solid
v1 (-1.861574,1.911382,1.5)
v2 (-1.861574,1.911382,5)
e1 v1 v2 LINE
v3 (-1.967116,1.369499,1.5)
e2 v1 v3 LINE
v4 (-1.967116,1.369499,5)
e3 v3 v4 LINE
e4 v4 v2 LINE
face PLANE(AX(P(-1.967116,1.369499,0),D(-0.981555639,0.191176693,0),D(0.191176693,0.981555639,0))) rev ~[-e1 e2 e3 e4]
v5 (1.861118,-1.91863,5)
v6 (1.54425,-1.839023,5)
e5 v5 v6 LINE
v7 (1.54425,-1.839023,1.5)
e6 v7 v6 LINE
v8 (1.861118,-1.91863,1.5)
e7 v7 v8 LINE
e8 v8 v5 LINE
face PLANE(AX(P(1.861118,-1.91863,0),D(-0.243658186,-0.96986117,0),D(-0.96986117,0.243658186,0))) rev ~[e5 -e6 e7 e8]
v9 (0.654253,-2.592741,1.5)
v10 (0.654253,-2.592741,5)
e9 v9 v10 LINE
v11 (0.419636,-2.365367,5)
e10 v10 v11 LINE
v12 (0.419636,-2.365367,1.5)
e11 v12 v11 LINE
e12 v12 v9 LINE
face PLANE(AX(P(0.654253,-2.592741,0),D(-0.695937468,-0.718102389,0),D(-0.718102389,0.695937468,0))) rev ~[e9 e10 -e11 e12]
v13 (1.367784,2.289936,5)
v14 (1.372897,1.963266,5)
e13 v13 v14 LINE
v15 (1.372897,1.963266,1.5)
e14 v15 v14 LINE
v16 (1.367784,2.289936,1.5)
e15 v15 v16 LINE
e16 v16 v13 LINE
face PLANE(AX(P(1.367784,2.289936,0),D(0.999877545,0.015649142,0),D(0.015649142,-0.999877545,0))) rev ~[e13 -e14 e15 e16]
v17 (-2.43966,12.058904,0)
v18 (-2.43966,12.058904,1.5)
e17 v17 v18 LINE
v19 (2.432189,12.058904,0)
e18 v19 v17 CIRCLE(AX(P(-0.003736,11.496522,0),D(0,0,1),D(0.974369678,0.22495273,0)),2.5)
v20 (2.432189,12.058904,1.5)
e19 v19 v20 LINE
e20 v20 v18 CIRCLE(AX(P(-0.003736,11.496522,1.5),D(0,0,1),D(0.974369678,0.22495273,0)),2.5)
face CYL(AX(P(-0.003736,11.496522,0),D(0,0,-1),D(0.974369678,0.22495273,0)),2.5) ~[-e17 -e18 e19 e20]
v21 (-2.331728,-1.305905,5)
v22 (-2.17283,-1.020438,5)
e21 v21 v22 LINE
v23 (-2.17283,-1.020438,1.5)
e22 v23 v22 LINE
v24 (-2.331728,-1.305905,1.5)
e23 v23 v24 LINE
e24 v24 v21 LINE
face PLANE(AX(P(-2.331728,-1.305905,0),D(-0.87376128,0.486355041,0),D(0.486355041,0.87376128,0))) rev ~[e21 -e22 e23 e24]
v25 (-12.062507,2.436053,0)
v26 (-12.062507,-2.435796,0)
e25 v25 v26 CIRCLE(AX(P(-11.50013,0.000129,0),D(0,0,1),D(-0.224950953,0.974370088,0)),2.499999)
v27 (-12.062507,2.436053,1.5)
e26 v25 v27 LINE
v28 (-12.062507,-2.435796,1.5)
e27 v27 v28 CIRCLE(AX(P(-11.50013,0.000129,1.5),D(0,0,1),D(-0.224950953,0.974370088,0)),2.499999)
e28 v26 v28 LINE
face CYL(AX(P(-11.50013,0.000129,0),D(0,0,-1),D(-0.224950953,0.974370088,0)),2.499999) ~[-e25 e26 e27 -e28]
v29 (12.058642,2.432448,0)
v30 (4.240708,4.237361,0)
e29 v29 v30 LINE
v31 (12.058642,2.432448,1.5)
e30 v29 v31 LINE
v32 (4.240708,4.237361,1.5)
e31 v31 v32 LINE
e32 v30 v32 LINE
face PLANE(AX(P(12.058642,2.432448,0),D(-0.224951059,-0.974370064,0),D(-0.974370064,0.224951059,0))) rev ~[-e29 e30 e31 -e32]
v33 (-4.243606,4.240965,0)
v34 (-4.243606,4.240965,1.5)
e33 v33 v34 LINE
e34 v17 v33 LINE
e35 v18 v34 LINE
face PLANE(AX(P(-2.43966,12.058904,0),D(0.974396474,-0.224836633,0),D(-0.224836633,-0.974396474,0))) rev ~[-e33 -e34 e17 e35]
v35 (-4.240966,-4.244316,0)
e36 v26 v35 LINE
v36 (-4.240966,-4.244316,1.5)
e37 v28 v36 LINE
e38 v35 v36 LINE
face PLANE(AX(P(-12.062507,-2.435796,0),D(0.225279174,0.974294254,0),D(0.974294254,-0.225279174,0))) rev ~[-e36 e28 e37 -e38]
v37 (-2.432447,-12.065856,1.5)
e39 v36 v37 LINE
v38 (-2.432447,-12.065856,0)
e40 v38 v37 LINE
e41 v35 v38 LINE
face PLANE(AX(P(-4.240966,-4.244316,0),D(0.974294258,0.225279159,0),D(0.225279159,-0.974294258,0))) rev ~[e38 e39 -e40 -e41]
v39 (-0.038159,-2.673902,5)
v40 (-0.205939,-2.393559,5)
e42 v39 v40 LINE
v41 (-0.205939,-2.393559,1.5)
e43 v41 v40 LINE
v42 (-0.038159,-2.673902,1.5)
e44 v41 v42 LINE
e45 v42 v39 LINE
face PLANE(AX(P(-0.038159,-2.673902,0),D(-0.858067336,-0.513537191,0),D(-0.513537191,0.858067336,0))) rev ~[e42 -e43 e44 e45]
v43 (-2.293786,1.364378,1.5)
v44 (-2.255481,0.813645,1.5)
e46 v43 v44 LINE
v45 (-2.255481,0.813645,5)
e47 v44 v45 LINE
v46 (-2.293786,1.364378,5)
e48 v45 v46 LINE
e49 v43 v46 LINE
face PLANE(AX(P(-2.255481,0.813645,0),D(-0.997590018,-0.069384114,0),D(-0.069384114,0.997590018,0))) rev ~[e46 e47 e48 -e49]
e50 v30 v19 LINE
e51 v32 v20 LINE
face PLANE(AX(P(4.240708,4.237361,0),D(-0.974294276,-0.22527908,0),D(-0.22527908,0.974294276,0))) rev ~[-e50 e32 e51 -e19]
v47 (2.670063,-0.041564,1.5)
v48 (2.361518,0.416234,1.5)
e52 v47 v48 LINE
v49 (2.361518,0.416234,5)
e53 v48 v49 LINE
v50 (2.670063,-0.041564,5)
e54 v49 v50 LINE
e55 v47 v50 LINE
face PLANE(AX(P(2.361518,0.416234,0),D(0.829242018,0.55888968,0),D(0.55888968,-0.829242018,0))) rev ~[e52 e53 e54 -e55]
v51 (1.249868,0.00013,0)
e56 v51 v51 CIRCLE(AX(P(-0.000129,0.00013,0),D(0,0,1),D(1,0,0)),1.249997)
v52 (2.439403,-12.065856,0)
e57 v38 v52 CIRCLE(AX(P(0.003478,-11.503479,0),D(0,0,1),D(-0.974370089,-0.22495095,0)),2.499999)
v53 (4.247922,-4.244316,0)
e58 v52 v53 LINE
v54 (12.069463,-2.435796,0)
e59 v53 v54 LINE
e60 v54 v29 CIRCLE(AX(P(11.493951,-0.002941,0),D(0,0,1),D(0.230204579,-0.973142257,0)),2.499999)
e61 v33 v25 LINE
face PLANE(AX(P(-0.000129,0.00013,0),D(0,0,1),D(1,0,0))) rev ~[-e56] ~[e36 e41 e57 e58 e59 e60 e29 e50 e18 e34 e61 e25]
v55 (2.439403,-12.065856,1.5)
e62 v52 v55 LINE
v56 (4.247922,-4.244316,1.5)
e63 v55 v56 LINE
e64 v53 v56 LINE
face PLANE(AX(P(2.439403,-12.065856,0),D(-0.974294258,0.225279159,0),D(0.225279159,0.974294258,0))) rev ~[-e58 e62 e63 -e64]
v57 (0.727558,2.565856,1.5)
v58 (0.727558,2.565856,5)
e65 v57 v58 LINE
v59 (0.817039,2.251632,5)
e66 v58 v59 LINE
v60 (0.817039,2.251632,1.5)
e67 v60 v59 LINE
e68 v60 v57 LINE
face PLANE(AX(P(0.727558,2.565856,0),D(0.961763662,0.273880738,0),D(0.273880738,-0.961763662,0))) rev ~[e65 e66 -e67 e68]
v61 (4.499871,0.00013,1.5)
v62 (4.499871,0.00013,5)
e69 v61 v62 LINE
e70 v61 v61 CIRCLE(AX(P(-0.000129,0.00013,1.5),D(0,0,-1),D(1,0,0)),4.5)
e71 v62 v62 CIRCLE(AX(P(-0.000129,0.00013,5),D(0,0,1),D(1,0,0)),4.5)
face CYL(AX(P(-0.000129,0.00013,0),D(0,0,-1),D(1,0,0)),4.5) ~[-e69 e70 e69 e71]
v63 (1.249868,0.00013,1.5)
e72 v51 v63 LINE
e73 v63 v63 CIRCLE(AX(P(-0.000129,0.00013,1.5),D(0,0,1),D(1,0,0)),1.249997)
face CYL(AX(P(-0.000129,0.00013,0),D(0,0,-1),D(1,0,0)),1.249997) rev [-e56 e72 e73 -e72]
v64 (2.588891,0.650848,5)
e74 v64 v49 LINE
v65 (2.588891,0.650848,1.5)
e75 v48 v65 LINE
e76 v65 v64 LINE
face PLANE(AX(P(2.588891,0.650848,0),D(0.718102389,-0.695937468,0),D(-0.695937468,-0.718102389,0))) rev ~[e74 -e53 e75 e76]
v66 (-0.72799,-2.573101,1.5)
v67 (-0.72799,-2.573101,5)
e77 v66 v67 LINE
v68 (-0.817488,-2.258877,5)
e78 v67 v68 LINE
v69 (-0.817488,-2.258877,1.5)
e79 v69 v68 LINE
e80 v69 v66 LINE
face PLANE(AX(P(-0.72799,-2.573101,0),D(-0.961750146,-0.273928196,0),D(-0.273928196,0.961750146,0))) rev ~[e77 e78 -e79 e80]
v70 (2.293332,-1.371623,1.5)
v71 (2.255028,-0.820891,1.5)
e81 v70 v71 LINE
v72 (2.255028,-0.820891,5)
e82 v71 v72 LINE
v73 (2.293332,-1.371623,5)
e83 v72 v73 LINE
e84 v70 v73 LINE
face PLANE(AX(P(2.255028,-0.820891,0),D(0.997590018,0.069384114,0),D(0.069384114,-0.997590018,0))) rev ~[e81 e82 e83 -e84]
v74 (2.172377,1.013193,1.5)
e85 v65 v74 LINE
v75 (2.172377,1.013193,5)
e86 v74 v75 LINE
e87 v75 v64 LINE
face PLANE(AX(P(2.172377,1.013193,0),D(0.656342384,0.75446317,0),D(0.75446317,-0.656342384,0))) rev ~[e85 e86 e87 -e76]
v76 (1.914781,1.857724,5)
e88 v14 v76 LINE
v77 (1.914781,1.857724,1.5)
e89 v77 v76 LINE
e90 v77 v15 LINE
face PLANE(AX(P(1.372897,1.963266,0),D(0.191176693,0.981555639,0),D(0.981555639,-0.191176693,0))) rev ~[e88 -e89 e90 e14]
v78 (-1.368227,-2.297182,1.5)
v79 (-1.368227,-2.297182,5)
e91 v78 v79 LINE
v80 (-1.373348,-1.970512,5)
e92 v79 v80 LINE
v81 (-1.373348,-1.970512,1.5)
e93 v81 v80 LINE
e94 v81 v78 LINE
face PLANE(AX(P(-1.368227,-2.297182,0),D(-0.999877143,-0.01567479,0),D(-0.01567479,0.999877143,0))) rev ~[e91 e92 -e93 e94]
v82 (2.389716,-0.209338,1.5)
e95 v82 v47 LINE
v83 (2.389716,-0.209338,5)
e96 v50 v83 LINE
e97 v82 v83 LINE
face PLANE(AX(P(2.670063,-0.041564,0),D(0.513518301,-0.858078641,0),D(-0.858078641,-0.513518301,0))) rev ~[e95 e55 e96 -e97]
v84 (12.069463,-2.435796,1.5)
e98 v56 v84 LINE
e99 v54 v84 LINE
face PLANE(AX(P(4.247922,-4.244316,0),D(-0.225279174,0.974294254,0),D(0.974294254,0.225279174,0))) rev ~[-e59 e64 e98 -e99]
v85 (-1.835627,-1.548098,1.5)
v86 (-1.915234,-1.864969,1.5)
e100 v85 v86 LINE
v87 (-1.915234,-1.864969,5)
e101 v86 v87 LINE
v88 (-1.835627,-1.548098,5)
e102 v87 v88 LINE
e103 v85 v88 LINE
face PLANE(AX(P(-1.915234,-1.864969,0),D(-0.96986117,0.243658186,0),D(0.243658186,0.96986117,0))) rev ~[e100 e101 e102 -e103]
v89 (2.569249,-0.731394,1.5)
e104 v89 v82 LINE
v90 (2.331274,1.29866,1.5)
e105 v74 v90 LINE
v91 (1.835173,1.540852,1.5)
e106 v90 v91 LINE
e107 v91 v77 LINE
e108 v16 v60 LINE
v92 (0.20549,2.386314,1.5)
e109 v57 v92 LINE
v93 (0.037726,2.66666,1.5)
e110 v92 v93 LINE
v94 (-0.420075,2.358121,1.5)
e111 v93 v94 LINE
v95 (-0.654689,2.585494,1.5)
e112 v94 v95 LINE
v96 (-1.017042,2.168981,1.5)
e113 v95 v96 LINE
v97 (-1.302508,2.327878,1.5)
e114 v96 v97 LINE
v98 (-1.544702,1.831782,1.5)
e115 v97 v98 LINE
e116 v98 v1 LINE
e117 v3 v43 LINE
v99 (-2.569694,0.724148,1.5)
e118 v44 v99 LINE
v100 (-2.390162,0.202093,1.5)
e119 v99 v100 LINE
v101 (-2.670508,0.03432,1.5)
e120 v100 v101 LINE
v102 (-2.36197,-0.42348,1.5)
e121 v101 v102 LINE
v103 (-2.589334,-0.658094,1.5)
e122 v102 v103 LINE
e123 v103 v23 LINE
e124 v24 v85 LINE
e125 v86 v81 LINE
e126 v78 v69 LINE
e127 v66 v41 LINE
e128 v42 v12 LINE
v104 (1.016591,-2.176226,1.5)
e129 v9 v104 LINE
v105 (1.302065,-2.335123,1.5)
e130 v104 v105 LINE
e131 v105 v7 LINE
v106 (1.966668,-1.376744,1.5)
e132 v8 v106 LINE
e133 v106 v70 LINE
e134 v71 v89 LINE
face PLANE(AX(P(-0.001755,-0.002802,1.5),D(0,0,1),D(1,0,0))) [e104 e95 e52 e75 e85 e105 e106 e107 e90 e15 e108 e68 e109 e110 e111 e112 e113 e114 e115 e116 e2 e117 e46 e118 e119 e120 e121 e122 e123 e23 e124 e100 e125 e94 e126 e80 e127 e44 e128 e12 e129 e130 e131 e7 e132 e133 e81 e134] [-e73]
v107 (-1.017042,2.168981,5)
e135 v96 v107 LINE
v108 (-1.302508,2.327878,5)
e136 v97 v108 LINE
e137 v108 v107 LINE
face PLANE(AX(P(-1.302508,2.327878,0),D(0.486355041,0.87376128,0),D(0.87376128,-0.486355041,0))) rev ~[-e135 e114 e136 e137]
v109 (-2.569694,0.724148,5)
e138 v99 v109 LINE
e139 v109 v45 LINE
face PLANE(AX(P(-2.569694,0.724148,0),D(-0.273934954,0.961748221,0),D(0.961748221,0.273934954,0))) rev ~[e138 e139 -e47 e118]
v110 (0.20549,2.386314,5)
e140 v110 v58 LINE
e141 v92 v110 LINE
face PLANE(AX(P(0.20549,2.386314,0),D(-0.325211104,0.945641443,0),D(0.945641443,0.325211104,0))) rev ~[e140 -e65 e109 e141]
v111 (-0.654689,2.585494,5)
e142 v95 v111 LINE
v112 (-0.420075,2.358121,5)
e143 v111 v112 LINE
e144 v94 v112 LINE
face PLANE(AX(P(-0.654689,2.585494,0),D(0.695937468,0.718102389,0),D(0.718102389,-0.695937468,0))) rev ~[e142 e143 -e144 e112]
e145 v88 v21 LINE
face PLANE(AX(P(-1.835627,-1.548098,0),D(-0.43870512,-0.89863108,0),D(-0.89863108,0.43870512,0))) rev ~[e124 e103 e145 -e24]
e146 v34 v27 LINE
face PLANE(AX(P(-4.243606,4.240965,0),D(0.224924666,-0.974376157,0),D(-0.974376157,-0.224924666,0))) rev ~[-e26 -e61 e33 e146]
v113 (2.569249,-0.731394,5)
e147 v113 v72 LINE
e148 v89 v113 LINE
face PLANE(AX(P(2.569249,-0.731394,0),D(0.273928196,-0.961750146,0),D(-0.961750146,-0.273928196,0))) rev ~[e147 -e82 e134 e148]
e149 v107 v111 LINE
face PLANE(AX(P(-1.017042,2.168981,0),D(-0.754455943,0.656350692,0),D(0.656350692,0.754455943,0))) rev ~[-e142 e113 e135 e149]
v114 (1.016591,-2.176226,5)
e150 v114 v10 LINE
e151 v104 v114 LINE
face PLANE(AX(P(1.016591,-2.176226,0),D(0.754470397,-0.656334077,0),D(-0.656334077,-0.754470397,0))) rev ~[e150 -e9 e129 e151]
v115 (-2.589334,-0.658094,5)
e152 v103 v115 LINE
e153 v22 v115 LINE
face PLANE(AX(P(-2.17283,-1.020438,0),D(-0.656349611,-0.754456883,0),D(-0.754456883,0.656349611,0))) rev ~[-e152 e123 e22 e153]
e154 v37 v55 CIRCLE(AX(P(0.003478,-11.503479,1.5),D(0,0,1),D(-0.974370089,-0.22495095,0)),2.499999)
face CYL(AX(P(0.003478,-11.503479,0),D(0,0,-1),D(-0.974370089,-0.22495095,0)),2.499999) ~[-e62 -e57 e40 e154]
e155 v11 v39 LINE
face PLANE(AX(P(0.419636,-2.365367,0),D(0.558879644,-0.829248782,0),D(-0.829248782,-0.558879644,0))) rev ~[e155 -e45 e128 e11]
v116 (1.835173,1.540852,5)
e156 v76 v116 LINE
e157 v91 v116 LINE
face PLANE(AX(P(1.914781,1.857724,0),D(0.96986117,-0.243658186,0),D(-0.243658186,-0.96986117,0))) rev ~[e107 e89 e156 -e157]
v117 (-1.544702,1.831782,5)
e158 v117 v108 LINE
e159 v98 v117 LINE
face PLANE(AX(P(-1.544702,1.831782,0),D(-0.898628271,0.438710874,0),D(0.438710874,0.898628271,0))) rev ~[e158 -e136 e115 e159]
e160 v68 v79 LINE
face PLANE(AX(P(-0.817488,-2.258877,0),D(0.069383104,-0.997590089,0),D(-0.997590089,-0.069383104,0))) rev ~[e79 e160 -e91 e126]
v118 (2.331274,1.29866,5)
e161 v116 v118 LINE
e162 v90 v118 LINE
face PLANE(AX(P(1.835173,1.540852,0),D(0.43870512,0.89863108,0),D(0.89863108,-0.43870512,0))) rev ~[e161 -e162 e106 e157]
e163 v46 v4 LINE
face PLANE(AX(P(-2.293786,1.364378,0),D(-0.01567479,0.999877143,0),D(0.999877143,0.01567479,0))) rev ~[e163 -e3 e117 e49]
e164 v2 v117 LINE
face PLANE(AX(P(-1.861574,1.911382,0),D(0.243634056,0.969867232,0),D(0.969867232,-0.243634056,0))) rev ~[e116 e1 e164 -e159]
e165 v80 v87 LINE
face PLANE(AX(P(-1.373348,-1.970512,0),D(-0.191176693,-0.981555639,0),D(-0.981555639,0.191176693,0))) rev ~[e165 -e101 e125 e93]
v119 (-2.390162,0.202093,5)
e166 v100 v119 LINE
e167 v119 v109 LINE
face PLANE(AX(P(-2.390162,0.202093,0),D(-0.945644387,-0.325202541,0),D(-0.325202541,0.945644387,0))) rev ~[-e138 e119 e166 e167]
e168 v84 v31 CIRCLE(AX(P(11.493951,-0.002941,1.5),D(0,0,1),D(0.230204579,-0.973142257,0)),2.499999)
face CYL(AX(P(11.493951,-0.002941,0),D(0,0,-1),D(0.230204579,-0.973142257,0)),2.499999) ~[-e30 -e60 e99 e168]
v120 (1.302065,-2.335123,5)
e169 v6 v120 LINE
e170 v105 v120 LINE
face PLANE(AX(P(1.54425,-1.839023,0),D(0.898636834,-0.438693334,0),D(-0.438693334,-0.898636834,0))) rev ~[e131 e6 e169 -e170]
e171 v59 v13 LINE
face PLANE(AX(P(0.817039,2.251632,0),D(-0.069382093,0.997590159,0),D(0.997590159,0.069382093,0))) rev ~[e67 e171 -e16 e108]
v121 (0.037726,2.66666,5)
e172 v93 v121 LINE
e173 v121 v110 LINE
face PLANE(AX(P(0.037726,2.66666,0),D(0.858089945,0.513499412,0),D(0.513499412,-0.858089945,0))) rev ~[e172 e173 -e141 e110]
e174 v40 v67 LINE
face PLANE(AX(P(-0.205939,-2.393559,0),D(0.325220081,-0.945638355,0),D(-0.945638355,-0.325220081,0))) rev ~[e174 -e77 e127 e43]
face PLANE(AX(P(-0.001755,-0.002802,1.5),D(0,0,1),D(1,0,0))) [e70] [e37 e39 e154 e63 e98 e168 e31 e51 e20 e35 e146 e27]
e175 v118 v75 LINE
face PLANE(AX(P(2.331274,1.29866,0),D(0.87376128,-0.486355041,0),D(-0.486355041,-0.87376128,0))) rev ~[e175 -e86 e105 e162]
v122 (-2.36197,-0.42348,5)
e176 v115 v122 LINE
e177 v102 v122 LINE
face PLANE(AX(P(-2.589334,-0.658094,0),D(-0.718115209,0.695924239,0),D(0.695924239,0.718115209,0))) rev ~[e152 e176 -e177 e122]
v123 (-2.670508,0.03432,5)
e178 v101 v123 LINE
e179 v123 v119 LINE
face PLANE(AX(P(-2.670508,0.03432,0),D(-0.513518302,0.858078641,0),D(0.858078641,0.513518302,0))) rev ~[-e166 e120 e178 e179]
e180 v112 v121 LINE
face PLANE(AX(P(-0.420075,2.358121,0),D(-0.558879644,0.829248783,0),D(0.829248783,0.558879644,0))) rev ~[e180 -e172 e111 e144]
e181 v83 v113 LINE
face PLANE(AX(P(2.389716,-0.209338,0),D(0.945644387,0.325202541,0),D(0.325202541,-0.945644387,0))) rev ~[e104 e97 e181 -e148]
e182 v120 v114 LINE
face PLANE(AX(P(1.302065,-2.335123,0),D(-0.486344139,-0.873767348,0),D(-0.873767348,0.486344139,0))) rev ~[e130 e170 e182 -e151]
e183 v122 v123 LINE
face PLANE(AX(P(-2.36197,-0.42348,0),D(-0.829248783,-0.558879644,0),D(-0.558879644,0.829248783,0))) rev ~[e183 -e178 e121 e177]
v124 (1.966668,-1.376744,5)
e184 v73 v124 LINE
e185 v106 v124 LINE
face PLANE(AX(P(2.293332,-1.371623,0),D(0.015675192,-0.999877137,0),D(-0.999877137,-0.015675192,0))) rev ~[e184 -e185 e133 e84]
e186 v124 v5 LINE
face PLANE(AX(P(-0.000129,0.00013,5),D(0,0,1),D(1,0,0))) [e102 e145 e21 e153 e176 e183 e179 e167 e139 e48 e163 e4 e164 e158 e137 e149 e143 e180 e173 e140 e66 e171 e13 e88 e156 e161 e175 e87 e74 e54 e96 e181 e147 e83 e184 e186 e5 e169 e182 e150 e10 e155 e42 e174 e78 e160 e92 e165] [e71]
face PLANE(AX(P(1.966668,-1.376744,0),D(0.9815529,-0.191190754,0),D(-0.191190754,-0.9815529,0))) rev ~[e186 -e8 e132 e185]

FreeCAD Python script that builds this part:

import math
import FreeCAD as App
import Part
import Sketcher
Q = App.Units.Quantity

doc = App.newDocument("Part")
body = doc.addObject("PartDesign::Body", "Body")

sketch1 = doc.addObject("Sketcher::SketchObject", "Sketch")
body.addObject(sketch1)
sketch1.AttachmentSupport = (doc.XY_Plane, [""])
sketch1.MapMode = "FlatFace"
sketch1.addGeometry(Part.Circle(App.Vector(0, 0, 0), App.Vector(0, 0, 1), 3.5), False)
sketch1.addGeometry(Part.Circle(App.Vector(0, 0, 0), App.Vector(0, 0, 1), 3), False)
sketch1.addConstraint(Sketcher.Constraint("Diameter", 0, Q("6.988622 mm")))
sketch1.addConstraint(Sketcher.Constraint("Diameter", 1, Q("6.085762 mm")))
sketch1.addConstraint(Sketcher.Constraint("DistanceX", 1, 3, -1, 1, Q("0.000129 mm")))
sketch1.addConstraint(Sketcher.Constraint("DistanceY", -1, 1, 1, 3, Q("0.00013 mm")))
sketch1.addConstraint(Sketcher.Constraint("DistanceX", 1, 3, 0, 3, Q("0.000261 mm")))
sketch1.addConstraint(Sketcher.Constraint("DistanceY", -1, 1, 0, 3, Q("0.002067 mm")))
pad1 = doc.addObject("PartDesign::Pad", "Pad")
body.addObject(pad1)
pad1.Profile = sketch1
pad1.Length = 5

sketch2 = doc.addObject("Sketcher::SketchObject", "Sketch001")
body.addObject(sketch2)
sketch2.AttachmentSupport = (doc.XY_Plane, [""])
sketch2.MapMode = "FlatFace"
sketch2.addGeometry(Part.Circle(App.Vector(0, 0, 0), App.Vector(0, 0, 1), 4.5), False)
sketch2.addGeometry(Part.Circle(App.Vector(0, 0, 0), App.Vector(0, 0, 1), 3.5), False)
sketch2.addConstraint(Sketcher.Constraint("Diameter", 0, Q("9 mm")))
sketch2.addConstraint(Sketcher.Constraint("Diameter", 1, Q("6.988622 mm")))
sketch2.addConstraint(Sketcher.Constraint("DistanceX", 0, 3, -1, 1, Q("0.000129 mm")))
sketch2.addConstraint(Sketcher.Constraint("DistanceY", -1, 1, 0, 3, Q("0.00013 mm")))
sketch2.addConstraint(Sketcher.Constraint("DistanceX", 0, 3, 1, 3, Q("0.000261 mm")))
sketch2.addConstraint(Sketcher.Constraint("DistanceY", -1, 1, 1, 3, Q("0.002067 mm")))
pad2 = doc.addObject("PartDesign::Pad", "Pad001")
body.addObject(pad2)
pad2.Profile = sketch2
pad2.Length = 5

sketch3 = doc.addObject("Sketcher::SketchObject", "Sketch002")
body.addObject(sketch3)
sketch3.AttachmentSupport = (doc.XY_Plane, [""])
sketch3.MapMode = "FlatFace"
sketch3.addGeometry(Part.LineSegment(App.Vector(2.4, -12.1, 0), App.Vector(4.2, -4.2, 0)), False)
sketch3.addGeometry(Part.LineSegment(App.Vector(4.2, -4.2, 0), App.Vector(12.1, -2.4, 0)), False)
sketch3.addGeometry(Part.ArcOfCircle(Part.Circle(App.Vector(11.5, 0, 0), App.Vector(0, 0, 1), 2.5), math.radians(-77), math.radians(77)), False)
sketch3.addGeometry(Part.LineSegment(App.Vector(12.1, 2.4, 0), App.Vector(4.2, 4.2, 0)), False)
sketch3.addGeometry(Part.LineSegment(App.Vector(4.2, 4.2, 0), App.Vector(2.4, 12.1, 0)), False)
sketch3.addGeometry(Part.ArcOfCircle(Part.Circle(App.Vector(0, 11.5, 0), App.Vector(0, 0, 1), 2.5), math.radians(13), math.radians(167)), False)
sketch3.addGeometry(Part.LineSegment(App.Vector(-2.4, 12.1, 0), App.Vector(-4.2, 4.2, 0)), False)
sketch3.addGeometry(Part.LineSegment(App.Vector(-4.2, 4.2, 0), App.Vector(-12.1, 2.4, 0)), False)
sketch3.addGeometry(Part.ArcOfCircle(Part.Circle(App.Vector(-11.5, 0, 0), App.Vector(0, 0, 1), 2.5), math.radians(103), math.radians(257)), False)
sketch3.addGeometry(Part.LineSegment(App.Vector(-12.1, -2.4, 0), App.Vector(-4.2, -4.2, 0)), False)
sketch3.addGeometry(Part.LineSegment(App.Vector(-4.2, -4.2, 0), App.Vector(-2.4, -12.1, 0)), False)
sketch3.addGeometry(Part.ArcOfCircle(Part.Circle(App.Vector(0, -11.5, 0), App.Vector(0, 0, 1), 2.5), math.radians(-167), math.radians(-13)), False)
sketch3.addGeometry(Part.Circle(App.Vector(0, 0, 0), App.Vector(0, 0, 1), 1.2), False)
sketch3.addConstraint(Sketcher.Constraint("Coincident", 0, 2, 1, 1))
sketch3.addConstraint(Sketcher.Constraint("Coincident", 1, 2, 2, 1))
sketch3.addConstraint(Sketcher.Constraint("Coincident", 2, 2, 3, 1))
sketch3.addConstraint(Sketcher.Constraint("Coincident", 3, 2, 4, 1))
sketch3.addConstraint(Sketcher.Constraint("Coincident", 4, 2, 5, 1))
sketch3.addConstraint(Sketcher.Constraint("Coincident", 5, 2, 6, 1))
sketch3.addConstraint(Sketcher.Constraint("Coincident", 6, 2, 7, 1))
sketch3.addConstraint(Sketcher.Constraint("Coincident", 7, 2, 8, 1))
sketch3.addConstraint(Sketcher.Constraint("Coincident", 8, 2, 9, 1))
sketch3.addConstraint(Sketcher.Constraint("Coincident", 9, 2, 10, 1))
sketch3.addConstraint(Sketcher.Constraint("Coincident", 10, 2, 11, 1))
sketch3.addConstraint(Sketcher.Constraint("Coincident", 11, 2, 0, 1))
sketch3.addConstraint(Sketcher.Constraint("Equal", 2, 5))
sketch3.addConstraint(Sketcher.Constraint("Equal", 5, 8))
sketch3.addConstraint(Sketcher.Constraint("Equal", 8, 11))
sketch3.addConstraint(Sketcher.Constraint("Perpendicular", 1, 4))
sketch3.addConstraint(Sketcher.Constraint("Perpendicular", 0, 9))
sketch3.addConstraint(Sketcher.Constraint("Parallel", 4, 10))
sketch3.addConstraint(Sketcher.Constraint("Horizontal", 8, 3, 12, 3))
sketch3.addConstraint(Sketcher.Constraint("Horizontal", 4, 2, 5, 2))
sketch3.addConstraint(Sketcher.Constraint("Horizontal", 1, 2, 8, 2))
sketch3.addConstraint(Sketcher.Constraint("Horizontal", 0, 2, 9, 2))
sketch3.addConstraint(Sketcher.Constraint("Horizontal", 10, 2, 11, 2))
sketch3.addConstraint(Sketcher.Constraint("Vertical", 7, 2, 8, 2))
sketch3.addConstraint(Sketcher.Constraint("Equal", 0, 1))
sketch3.addConstraint(Sketcher.Constraint("Equal", 1, 9))
sketch3.addConstraint(Sketcher.Constraint("Radius", 2, Q("2.499999 mm")))
sketch3.addConstraint(Sketcher.Constraint("Angle", 3, Q("167 deg")))
sketch3.addConstraint(Sketcher.Constraint("DistanceY", 11, 3, 5, 3, Q("23.000001 mm")))
sketch3.addConstraint(Sketcher.Constraint("DistanceX", 8, 3, 12, 3, Q("11.500001 mm")))
sketch3.addConstraint(Sketcher.Constraint("Diameter", 12, Q("2.499994 mm")))
sketch3.addConstraint(Sketcher.Constraint("DistanceX", 5, 3, 1, 2, Q("12.073198 mm")))
sketch3.addConstraint(Sketcher.Constraint("DistanceY", 2, 3, 3, 2, Q("4.240302 mm")))
sketch3.addConstraint(Sketcher.Constraint("DistanceX", 7, 2, 6, 2, Q("7.8189 mm")))
sketch3.addConstraint(Sketcher.Constraint("Distance", 7, Q("8.024519 mm")))
sketch3.addConstraint(Sketcher.Constraint("DistanceX", -1, 1, 2, 3, Q("11.493951 mm")))
sketch3.addConstraint(Sketcher.Constraint("DistanceY", 2, 3, -1, 1, Q("0.002941 mm")))
sketch3.addConstraint(Sketcher.Constraint("DistanceY", -1, 1, 5, 3, Q("11.496522 mm")))
sketch3.addConstraint(Sketcher.Constraint("DistanceX", 8, 3, -1, 1, Q("11.50013 mm")))
sketch3.addConstraint(Sketcher.Constraint("DistanceY", -1, 1, 8, 3, Q("0.000129 mm")))
sketch3.addConstraint(Sketcher.Constraint("DistanceX", -1, 1, 0, 2, Q("4.247922 mm")))
sketch3.addConstraint(Sketcher.Constraint("DistanceY", -1, 1, 2, 2, Q("2.432448 mm")))
sketch3.addConstraint(Sketcher.Constraint("DistanceX", -1, 1, 4, 2, Q("2.432189 mm")))
pad3 = doc.addObject("PartDesign::Pad", "Pad002")
body.addObject(pad3)
pad3.Profile = sketch3
pad3.Length = 1.5

sketch4 = doc.addObject("Sketcher::SketchObject", "Sketch003")
body.addObject(sketch4)
sketch4.AttachmentSupport = (doc.XY_Plane, [""])
sketch4.MapMode = "FlatFace"
sketch4.addGeometry(Part.Circle(App.Vector(-0.000129, 0.00013, 0), App.Vector(0, 0, 1), 3.042881), False)
sketch4.addGeometry(Part.LineSegment(App.Vector(2.172377, 1.013193, 0), App.Vector(2.588891, 0.650848, 0)), False)
sketch4.addGeometry(Part.LineSegment(App.Vector(2.588891, 0.650848, 0), App.Vector(2.361518, 0.416234, 0)), False)
sketch4.addGeometry(Part.LineSegment(App.Vector(2.361518, 0.416234, 0), App.Vector(2.670063, -0.041564, 0)), False)
sketch4.addGeometry(Part.LineSegment(App.Vector(2.670063, -0.041564, 0), App.Vector(2.389716, -0.209338, 0)), False)
sketch4.addGeometry(Part.LineSegment(App.Vector(2.389716, -0.209338, 0), App.Vector(2.569249, -0.731394, 0)), False)
sketch4.addGeometry(Part.LineSegment(App.Vector(2.569249, -0.731394, 0), App.Vector(2.255028, -0.820891, 0)), False)
sketch4.addGeometry(Part.LineSegment(App.Vector(2.255028, -0.820891, 0), App.Vector(2.293332, -1.371623, 0)), False)
sketch4.addGeometry(Part.LineSegment(App.Vector(2.293332, -1.371623, 0), App.Vector(1.966668, -1.376744, 0)), False)
sketch4.addGeometry(Part.LineSegment(App.Vector(1.966668, -1.376744, 0), App.Vector(1.861118, -1.91863, 0)), False)
sketch4.addGeometry(Part.LineSegment(App.Vector(1.861118, -1.91863, 0), App.Vector(1.54425, -1.839023, 0)), False)
sketch4.addGeometry(Part.LineSegment(App.Vector(1.54425, -1.839023, 0), App.Vector(1.302065, -2.335123, 0)), False)
sketch4.addGeometry(Part.LineSegment(App.Vector(1.302065, -2.335123, 0), App.Vector(1.016591, -2.176226, 0)), False)
sketch4.addGeometry(Part.LineSegment(App.Vector(1.016591, -2.176226, 0), App.Vector(0.654253, -2.592741, 0)), False)
sketch4.addGeometry(Part.LineSegment(App.Vector(0.654253, -2.592741, 0), App.Vector(0.419636, -2.365367, 0)), False)
sketch4.addGeometry(Part.LineSegment(App.Vector(0.419636, -2.365367, 0), App.Vector(-0.038159, -2.673902, 0)), False)
sketch4.addGeometry(Part.LineSegment(App.Vector(-0.038159, -2.673902, 0), App.Vector(-0.205939, -2.393559, 0)), False)
sketch4.addGeometry(Part.LineSegment(App.Vector(-0.205939, -2.393559, 0), App.Vector(-0.72799, -2.573101, 0)), False)
sketch4.addGeometry(Part.LineSegment(App.Vector(-0.72799, -2.573101, 0), App.Vector(-0.817488, -2.258877, 0)), False)
sketch4.addGeometry(Part.LineSegment(App.Vector(-0.817488, -2.258877, 0), App.Vector(-1.368227, -2.297182, 0)), False)
sketch4.addGeometry(Part.LineSegment(App.Vector(-1.368227, -2.297182, 0), App.Vector(-1.373348, -1.970512, 0)), False)
sketch4.addGeometry(Part.LineSegment(App.Vector(-1.373348, -1.970512, 0), App.Vector(-1.915234, -1.864969, 0)), False)
sketch4.addGeometry(Part.LineSegment(App.Vector(-1.915234, -1.864969, 0), App.Vector(-1.835627, -1.548098, 0)), False)
sketch4.addGeometry(Part.LineSegment(App.Vector(-1.835627, -1.548098, 0), App.Vector(-2.331728, -1.305905, 0)), False)
sketch4.addGeometry(Part.LineSegment(App.Vector(-2.331728, -1.305905, 0), App.Vector(-2.17283, -1.020438, 0)), False)
sketch4.addGeometry(Part.LineSegment(App.Vector(-2.17283, -1.020438, 0), App.Vector(-2.589334, -0.658094, 0)), False)
sketch4.addGeometry(Part.LineSegment(App.Vector(-2.589334, -0.658094, 0), App.Vector(-2.36197, -0.42348, 0)), False)
sketch4.addGeometry(Part.LineSegment(App.Vector(-2.36197, -0.42348, 0), App.Vector(-2.670508, 0.03432, 0)), False)
sketch4.addGeometry(Part.LineSegment(App.Vector(-2.670508, 0.03432, 0), App.Vector(-2.390162, 0.202093, 0)), False)
sketch4.addGeometry(Part.LineSegment(App.Vector(-2.390162, 0.202093, 0), App.Vector(-2.569694, 0.724148, 0)), False)
sketch4.addGeometry(Part.LineSegment(App.Vector(-2.569694, 0.724148, 0), App.Vector(-2.255481, 0.813645, 0)), False)
sketch4.addGeometry(Part.LineSegment(App.Vector(-2.255481, 0.813645, 0), App.Vector(-2.293786, 1.364378, 0)), False)
sketch4.addGeometry(Part.LineSegment(App.Vector(-2.293786, 1.364378, 0), App.Vector(-1.967116, 1.369499, 0)), False)
sketch4.addGeometry(Part.LineSegment(App.Vector(-1.967116, 1.369499, 0), App.Vector(-1.861574, 1.911382, 0)), False)
sketch4.addGeometry(Part.LineSegment(App.Vector(-1.861574, 1.911382, 0), App.Vector(-1.544702, 1.831782, 0)), False)
sketch4.addGeometry(Part.LineSegment(App.Vector(-1.544702, 1.831782, 0), App.Vector(-1.302508, 2.327878, 0)), False)
sketch4.addGeometry(Part.LineSegment(App.Vector(-1.302508, 2.327878, 0), App.Vector(-1.017042, 2.168981, 0)), False)
sketch4.addGeometry(Part.LineSegment(App.Vector(-1.017042, 2.168981, 0), App.Vector(-0.654689, 2.585494, 0)), False)
sketch4.addGeometry(Part.LineSegment(App.Vector(-0.654689, 2.585494, 0), App.Vector(-0.420075, 2.358121, 0)), False)
sketch4.addGeometry(Part.LineSegment(App.Vector(-0.420075, 2.358121, 0), App.Vector(0.037726, 2.66666, 0)), False)
sketch4.addGeometry(Part.LineSegment(App.Vector(0.037726, 2.66666, 0), App.Vector(0.20549, 2.386314, 0)), False)
sketch4.addGeometry(Part.LineSegment(App.Vector(0.20549, 2.386314, 0), App.Vector(0.727558, 2.565856, 0)), False)
sketch4.addGeometry(Part.LineSegment(App.Vector(0.727558, 2.565856, 0), App.Vector(0.817039, 2.251632, 0)), False)
sketch4.addGeometry(Part.LineSegment(App.Vector(0.817039, 2.251632, 0), App.Vector(1.367784, 2.289936, 0)), False)
sketch4.addGeometry(Part.LineSegment(App.Vector(1.367784, 2.289936, 0), App.Vector(1.372897, 1.963266, 0)), False)
sketch4.addGeometry(Part.LineSegment(App.Vector(1.372897, 1.963266, 0), App.Vector(1.914781, 1.857724, 0)), False)
sketch4.addGeometry(Part.LineSegment(App.Vector(1.914781, 1.857724, 0), App.Vector(1.835173, 1.540852, 0)), False)
sketch4.addGeometry(Part.LineSegment(App.Vector(1.835173, 1.540852, 0), App.Vector(2.331274, 1.29866, 0)), False)
sketch4.addGeometry(Part.LineSegment(App.Vector(2.331274, 1.29866, 0), App.Vector(2.172377, 1.013193, 0)), False)
sketch4.addConstraint(Sketcher.Constraint("Coincident", 1, 2, 2, 1))
sketch4.addConstraint(Sketcher.Constraint("Coincident", 2, 2, 3, 1))
sketch4.addConstraint(Sketcher.Constraint("Coincident", 3, 2, 4, 1))
sketch4.addConstraint(Sketcher.Constraint("Coincident", 4, 2, 5, 1))
sketch4.addConstraint(Sketcher.Constraint("Coincident", 5, 2, 6, 1))
sketch4.addConstraint(Sketcher.Constraint("Coincident", 6, 2, 7, 1))
sketch4.addConstraint(Sketcher.Constraint("Coincident", 7, 2, 8, 1))
sketch4.addConstraint(Sketcher.Constraint("Coincident", 8, 2, 9, 1))
sketch4.addConstraint(Sketcher.Constraint("Coincident", 9, 2, 10, 1))
sketch4.addConstraint(Sketcher.Constraint("Coincident", 10, 2, 11, 1))
sketch4.addConstraint(Sketcher.Constraint("Coincident", 11, 2, 12, 1))
sketch4.addConstraint(Sketcher.Constraint("Coincident", 12, 2, 13, 1))
sketch4.addConstraint(Sketcher.Constraint("Coincident", 13, 2, 14, 1))
sketch4.addConstraint(Sketcher.Constraint("Coincident", 14, 2, 15, 1))
sketch4.addConstraint(Sketcher.Constraint("Coincident", 15, 2, 16, 1))
sketch4.addConstraint(Sketcher.Constraint("Coincident", 16, 2, 17, 1))
sketch4.addConstraint(Sketcher.Constraint("Coincident", 17, 2, 18, 1))
sketch4.addConstraint(Sketcher.Constraint("Coincident", 18, 2, 19, 1))
sketch4.addConstraint(Sketcher.Constraint("Coincident", 19, 2, 20, 1))
sketch4.addConstraint(Sketcher.Constraint("Coincident", 20, 2, 21, 1))
sketch4.addConstraint(Sketcher.Constraint("Coincident", 21, 2, 22, 1))
sketch4.addConstraint(Sketcher.Constraint("Coincident", 22, 2, 23, 1))
sketch4.addConstraint(Sketcher.Constraint("Coincident", 23, 2, 24, 1))
sketch4.addConstraint(Sketcher.Constraint("Coincident", 24, 2, 25, 1))
sketch4.addConstraint(Sketcher.Constraint("Coincident", 25, 2, 26, 1))
sketch4.addConstraint(Sketcher.Constraint("Coincident", 26, 2, 27, 1))
sketch4.addConstraint(Sketcher.Constraint("Coincident", 27, 2, 28, 1))
sketch4.addConstraint(Sketcher.Constraint("Coincident", 28, 2, 29, 1))
sketch4.addConstraint(Sketcher.Constraint("Coincident", 29, 2, 30, 1))
sketch4.addConstraint(Sketcher.Constraint("Coincident", 30, 2, 31, 1))
sketch4.addConstraint(Sketcher.Constraint("Coincident", 31, 2, 32, 1))
sketch4.addConstraint(Sketcher.Constraint("Coincident", 32, 2, 33, 1))
sketch4.addConstraint(Sketcher.Constraint("Coincident", 33, 2, 34, 1))
sketch4.addConstraint(Sketcher.Constraint("Coincident", 34, 2, 35, 1))
sketch4.addConstraint(Sketcher.Constraint("Coincident", 35, 2, 36, 1))
sketch4.addConstraint(Sketcher.Constraint("Coincident", 36, 2, 37, 1))
sketch4.addConstraint(Sketcher.Constraint("Coincident", 37, 2, 38, 1))
sketch4.addConstraint(Sketcher.Constraint("Coincident", 38, 2, 39, 1))
sketch4.addConstraint(Sketcher.Constraint("Coincident", 39, 2, 40, 1))
sketch4.addConstraint(Sketcher.Constraint("Coincident", 40, 2, 41, 1))
sketch4.addConstraint(Sketcher.Constraint("Coincident", 41, 2, 42, 1))
sketch4.addConstraint(Sketcher.Constraint("Coincident", 42, 2, 43, 1))
sketch4.addConstraint(Sketcher.Constraint("Coincident", 43, 2, 44, 1))
sketch4.addConstraint(Sketcher.Constraint("Coincident", 44, 2, 45, 1))
sketch4.addConstraint(Sketcher.Constraint("Coincident", 45, 2, 46, 1))
sketch4.addConstraint(Sketcher.Constraint("Coincident", 46, 2, 47, 1))
sketch4.addConstraint(Sketcher.Constraint("Coincident", 47, 2, 48, 1))
sketch4.addConstraint(Sketcher.Constraint("Coincident", 48, 2, 1, 1))
sketch4.addConstraint(Sketcher.Constraint("Diameter", 0, Q("6.085762 mm")))
sketch4.addConstraint(Sketcher.Constraint("DistanceX", 10, 2, 5, 2, Q("1.024999 mm")))
sketch4.addConstraint(Sketcher.Constraint("DistanceX", 35, 2, 40, 2, Q("1.507999 mm")))
sketch4.addConstraint(Sketcher.Constraint("DistanceY", 17, 2, -1, 1, Q("2.573101 mm")))
sketch4.addConstraint(Sketcher.Constraint("DistanceY", -1, 1, 32, 2, Q("1.369499 mm")))
sketch4.addConstraint(Sketcher.Constraint("DistanceY", 3, 2, 2, 2, Q("0.457798 mm")))
sketch4.addConstraint(Sketcher.Constraint("DistanceX", 2, 2, 4, 2, Q("0.028198 mm")))
sketch4.addConstraint(Sketcher.Constraint("DistanceX", 9, 2, 4, 2, Q("0.528599 mm")))
sketch4.addConstraint(Sketcher.Constraint("DistanceY", 10, 2, 7, 2, Q("0.4674 mm")))
sketch4.addConstraint(Sketcher.Constraint("DistanceY", 11, 2, 10, 2, Q("0.4961 mm")))
sketch4.addConstraint(Sketcher.Constraint("DistanceY", 15, 2, 17, 2, Q("0.100802 mm")))
sketch4.addConstraint(Sketcher.Constraint("DistanceX", 22, 2, 19, 2, Q("0.467399 mm")))
sketch4.addConstraint(Sketcher.Constraint("DistanceX", 23, 2, 22, 2, Q("0.496101 mm")))
sketch4.addConstraint(Sketcher.Constraint("DistanceX", 25, 2, 21, 2, Q("0.6741 mm")))
sketch4.addConstraint(Sketcher.Constraint("DistanceY", 26, 2, 27, 2, Q("0.457799 mm")))
sketch4.addConstraint(Sketcher.Constraint("DistanceY", 34, 2, 33, 2, Q("0.079599 mm")))
sketch4.addConstraint(Sketcher.Constraint("DistanceY", 31, 2, 35, 2, Q("0.9635 mm")))
sketch4.addConstraint(Sketcher.Constraint("DistanceY", 34, 2, 36, 2, Q("0.337198 mm")))
sketch4.addConstraint(Sketcher.Constraint("DistanceX", 33, 2, 38, 2, Q("1.441499 mm")))
sketch4.addConstraint(Sketcher.Constraint("DistanceX", 38, 2, 39, 2, Q("0.4578 mm")))
sketch4.addConstraint(Sketcher.Constraint("DistanceX", 36, 2, 41, 2, Q("1.7446 mm")))
sketch4.addConstraint(Sketcher.Constraint("DistanceX", 46, 2, 47, 2, Q("0.496101 mm")))
sketch4.addConstraint(Sketcher.Constraint("Distance", 3, Q("0.552068 mm")))
sketch4.addConstraint(Sketcher.Constraint("Distance", 9, Q("0.55207 mm")))
sketch4.addConstraint(Sketcher.Constraint("Distance", 11, Q("0.552058 mm")))
sketch4.addConstraint(Sketcher.Constraint("Distance", 15, Q("0.552061 mm")))
sketch4.addConstraint(Sketcher.Constraint("Distance", 17, Q("0.552062 mm")))
sketch4.addConstraint(Sketcher.Constraint("Distance", 18, Q("0.32672 mm")))
sketch4.addConstraint(Sketcher.Constraint("Distance", 19, Q("0.55207 mm")))
sketch4.addConstraint(Sketcher.Constraint("Distance", 20, Q("0.32671 mm")))
sketch4.addConstraint(Sketcher.Constraint("Distance", 21, Q("0.552068 mm")))
sketch4.addConstraint(Sketcher.Constraint("Distance", 22, Q("0.326718 mm")))
sketch4.addConstraint(Sketcher.Constraint("Distance", 24, Q("0.326711 mm")))
sketch4.addConstraint(Sketcher.Constraint("Distance", 25, Q("0.552058 mm")))
sketch4.addConstraint(Sketcher.Constraint("Distance", 26, Q("0.326709 mm")))
sketch4.addConstraint(Sketcher.Constraint("Distance", 30, Q("0.32671 mm")))
sketch4.addConstraint(Sketcher.Constraint("Distance", 32, Q("0.32671 mm")))
sketch4.addConstraint(Sketcher.Constraint("Distance", 35, Q("0.552058 mm")))
sketch4.addConstraint(Sketcher.Constraint("Distance", 36, Q("0.32671 mm")))
sketch4.addConstraint(Sketcher.Constraint("Distance", 37, Q("0.552072 mm")))
sketch4.addConstraint(Sketcher.Constraint("Distance", 40, Q("0.326709 mm")))
sketch4.addConstraint(Sketcher.Constraint("Distance", 44, Q("0.326711 mm")))
sketch4.addConstraint(Sketcher.Constraint("Distance", 46, Q("0.326718 mm")))
sketch4.addConstraint(Sketcher.Constraint("Distance", 48, Q("0.32671 mm")))
sketch4.addConstraint(Sketcher.Constraint("DistanceX", 0, 3, -1, 1, Q("0.000129 mm")))
sketch4.addConstraint(Sketcher.Constraint("DistanceY", -1, 1, 0, 3, Q("0.00013 mm")))
sketch4.addConstraint(Sketcher.Constraint("DistanceX", -1, 1, 1, 2, Q("2.588891 mm")))
sketch4.addConstraint(Sketcher.Constraint("DistanceY", -1, 1, 1, 2, Q("0.650848 mm")))
sketch4.addConstraint(Sketcher.Constraint("DistanceX", -1, 1, 2, 2, Q("2.361518 mm")))
sketch4.addConstraint(Sketcher.Constraint("DistanceY", 4, 2, -1, 1, Q("0.209338 mm")))
sketch4.addConstraint(Sketcher.Constraint("DistanceX", -1, 1, 5, 2, Q("2.569249 mm")))
sketch4.addConstraint(Sketcher.Constraint("DistanceY", 6, 2, -1, 1, Q("0.820891 mm")))
sketch4.addConstraint(Sketcher.Constraint("DistanceX", -1, 1, 8, 2, Q("1.966668 mm")))
sketch4.addConstraint(Sketcher.Constraint("DistanceY", 9, 2, -1, 1, Q("1.91863 mm")))
sketch4.addConstraint(Sketcher.Constraint("DistanceX", -1, 1, 12, 2, Q("1.016591 mm")))
sketch4.addConstraint(Sketcher.Constraint("DistanceY", 13, 2, -1, 1, Q("2.592741 mm")))
sketch4.addConstraint(Sketcher.Constraint("DistanceX", 15, 2, -1, 1, Q("0.038159 mm")))
sketch4.addConstraint(Sketcher.Constraint("DistanceX", 16, 2, -1, 1, Q("0.205939 mm")))
sketch4.addConstraint(Sketcher.Constraint("DistanceY", 16, 2, -1, 1, Q("2.393559 mm")))
sketch4.addConstraint(Sketcher.Constraint("DistanceY", 19, 2, -1, 1, Q("2.297182 mm")))
sketch4.addConstraint(Sketcher.Constraint("DistanceX", 20, 2, -1, 1, Q("1.373348 mm")))
sketch4.addConstraint(Sketcher.Constraint("DistanceY", 20, 2, -1, 1, Q("1.970512 mm")))
sketch4.addConstraint(Sketcher.Constraint("DistanceY", 21, 2, -1, 1, Q("1.864969 mm")))
sketch4.addConstraint(Sketcher.Constraint("DistanceX", 24, 2, -1, 1, Q("2.17283 mm")))
sketch4.addConstraint(Sketcher.Constraint("DistanceX", 26, 2, -1, 1, Q("2.36197 mm")))
sketch4.addConstraint(Sketcher.Constraint("DistanceY", 26, 2, -1, 1, Q("0.42348 mm")))
sketch4.addConstraint(Sketcher.Constraint("DistanceY", -1, 1, 29, 2, Q("0.724148 mm")))
sketch4.addConstraint(Sketcher.Constraint("DistanceX", 30, 2, -1, 1, Q("2.255481 mm")))
sketch4.addConstraint(Sketcher.Constraint("DistanceY", -1, 1, 33, 2, Q("1.911382 mm")))
sketch4.addConstraint(Sketcher.Constraint("DistanceX", 35, 2, -1, 1, Q("1.302508 mm")))
sketch4.addConstraint(Sketcher.Constraint("DistanceX", 36, 2, -1, 1, Q("1.017042 mm")))
sketch4.addConstraint(Sketcher.Constraint("DistanceX", 37, 2, -1, 1, Q("0.654689 mm")))
sketch4.addConstraint(Sketcher.Constraint("DistanceY", -1, 1, 38, 2, Q("2.358121 mm")))
sketch4.addConstraint(Sketcher.Constraint("DistanceY", -1, 1, 39, 2, Q("2.66666 mm")))
sketch4.addConstraint(Sketcher.Constraint("DistanceX", -1, 1, 42, 2, Q("0.817039 mm")))
sketch4.addConstraint(Sketcher.Constraint("DistanceX", -1, 1, 45, 2, Q("1.914781 mm")))
sketch4.addConstraint(Sketcher.Constraint("DistanceY", -1, 1, 47, 2, Q("1.29866 mm")))
sketch4.addConstraint(Sketcher.Constraint("DistanceY", 4, 2, 2, 2, Q("0.625572 mm")))
sketch4.addConstraint(Sketcher.Constraint("DistanceY", 5, 2, 3, 2, Q("0.68983 mm")))
sketch4.addConstraint(Sketcher.Constraint("DistanceX", 6, 2, 5, 2, Q("0.314221 mm")))
sketch4.addConstraint(Sketcher.Constraint("DistanceY", 7, 2, 6, 2, Q("0.550732 mm")))
sketch4.addConstraint(Sketcher.Constraint("DistanceX", 7, 2, 3, 2, Q("0.376731 mm")))
sketch4.addConstraint(Sketcher.Constraint("DistanceY", 12, 2, 8, 2, Q("0.799482 mm")))
sketch4.addConstraint(Sketcher.Constraint("DistanceX", 13, 2, 12, 2, Q("0.362338 mm")))
sketch4.addConstraint(Sketcher.Constraint("DistanceY", 14, 2, 12, 2, Q("0.189141 mm")))
sketch4.addConstraint(Sketcher.Constraint("DistanceX", 27, 2, 26, 2, Q("0.308538 mm")))
sketch4.addConstraint(Sketcher.Constraint("DistanceY", 24, 2, 28, 2, Q("1.222531 mm")))
sketch4.addConstraint(Sketcher.Constraint("DistanceX", 25, 2, 29, 2, Q("0.01964 mm")))
sketch4.addConstraint(Sketcher.Constraint("DistanceX", 28, 2, 30, 2, Q("0.134681 mm")))
sketch4.addConstraint(Sketcher.Constraint("DistanceX", 29, 2, 31, 2, Q("0.275909 mm")))
sketch4.addConstraint(Sketcher.Constraint("DistanceX", 29, 2, 33, 2, Q("0.708121 mm")))
sketch4.addConstraint(Sketcher.Constraint("DistanceY", 40, 2, 41, 2, Q("0.179542 mm")))
sketch4.addConstraint(Sketcher.Constraint("DistanceY", 42, 2, 38, 2, Q("0.106489 mm")))
sketch4.addConstraint(Sketcher.Constraint("DistanceY", 43, 2, 41, 2, Q("0.27592 mm")))
sketch4.addConstraint(Sketcher.Constraint("DistanceX", 39, 2, 43, 2, Q("1.330059 mm")))
sketch4.addConstraint(Sketcher.Constraint("DistanceY", 44, 2, 43, 2, Q("0.326671 mm")))
sketch4.addConstraint(Sketcher.Constraint("DistanceY", 45, 2, 42, 2, Q("0.393909 mm")))
sketch4.addConstraint(Sketcher.Constraint("DistanceY", 46, 2, 45, 2, Q("0.316871 mm")))
sketch4.addConstraint(Sketcher.Constraint("DistanceY", 48, 2, 46, 2, Q("0.527659 mm")))
pad4 = doc.addObject("PartDesign::Pad", "Pad003")
body.addObject(pad4)
pad4.Profile = sketch4
pad4.Length = 5

doc.recompute()
